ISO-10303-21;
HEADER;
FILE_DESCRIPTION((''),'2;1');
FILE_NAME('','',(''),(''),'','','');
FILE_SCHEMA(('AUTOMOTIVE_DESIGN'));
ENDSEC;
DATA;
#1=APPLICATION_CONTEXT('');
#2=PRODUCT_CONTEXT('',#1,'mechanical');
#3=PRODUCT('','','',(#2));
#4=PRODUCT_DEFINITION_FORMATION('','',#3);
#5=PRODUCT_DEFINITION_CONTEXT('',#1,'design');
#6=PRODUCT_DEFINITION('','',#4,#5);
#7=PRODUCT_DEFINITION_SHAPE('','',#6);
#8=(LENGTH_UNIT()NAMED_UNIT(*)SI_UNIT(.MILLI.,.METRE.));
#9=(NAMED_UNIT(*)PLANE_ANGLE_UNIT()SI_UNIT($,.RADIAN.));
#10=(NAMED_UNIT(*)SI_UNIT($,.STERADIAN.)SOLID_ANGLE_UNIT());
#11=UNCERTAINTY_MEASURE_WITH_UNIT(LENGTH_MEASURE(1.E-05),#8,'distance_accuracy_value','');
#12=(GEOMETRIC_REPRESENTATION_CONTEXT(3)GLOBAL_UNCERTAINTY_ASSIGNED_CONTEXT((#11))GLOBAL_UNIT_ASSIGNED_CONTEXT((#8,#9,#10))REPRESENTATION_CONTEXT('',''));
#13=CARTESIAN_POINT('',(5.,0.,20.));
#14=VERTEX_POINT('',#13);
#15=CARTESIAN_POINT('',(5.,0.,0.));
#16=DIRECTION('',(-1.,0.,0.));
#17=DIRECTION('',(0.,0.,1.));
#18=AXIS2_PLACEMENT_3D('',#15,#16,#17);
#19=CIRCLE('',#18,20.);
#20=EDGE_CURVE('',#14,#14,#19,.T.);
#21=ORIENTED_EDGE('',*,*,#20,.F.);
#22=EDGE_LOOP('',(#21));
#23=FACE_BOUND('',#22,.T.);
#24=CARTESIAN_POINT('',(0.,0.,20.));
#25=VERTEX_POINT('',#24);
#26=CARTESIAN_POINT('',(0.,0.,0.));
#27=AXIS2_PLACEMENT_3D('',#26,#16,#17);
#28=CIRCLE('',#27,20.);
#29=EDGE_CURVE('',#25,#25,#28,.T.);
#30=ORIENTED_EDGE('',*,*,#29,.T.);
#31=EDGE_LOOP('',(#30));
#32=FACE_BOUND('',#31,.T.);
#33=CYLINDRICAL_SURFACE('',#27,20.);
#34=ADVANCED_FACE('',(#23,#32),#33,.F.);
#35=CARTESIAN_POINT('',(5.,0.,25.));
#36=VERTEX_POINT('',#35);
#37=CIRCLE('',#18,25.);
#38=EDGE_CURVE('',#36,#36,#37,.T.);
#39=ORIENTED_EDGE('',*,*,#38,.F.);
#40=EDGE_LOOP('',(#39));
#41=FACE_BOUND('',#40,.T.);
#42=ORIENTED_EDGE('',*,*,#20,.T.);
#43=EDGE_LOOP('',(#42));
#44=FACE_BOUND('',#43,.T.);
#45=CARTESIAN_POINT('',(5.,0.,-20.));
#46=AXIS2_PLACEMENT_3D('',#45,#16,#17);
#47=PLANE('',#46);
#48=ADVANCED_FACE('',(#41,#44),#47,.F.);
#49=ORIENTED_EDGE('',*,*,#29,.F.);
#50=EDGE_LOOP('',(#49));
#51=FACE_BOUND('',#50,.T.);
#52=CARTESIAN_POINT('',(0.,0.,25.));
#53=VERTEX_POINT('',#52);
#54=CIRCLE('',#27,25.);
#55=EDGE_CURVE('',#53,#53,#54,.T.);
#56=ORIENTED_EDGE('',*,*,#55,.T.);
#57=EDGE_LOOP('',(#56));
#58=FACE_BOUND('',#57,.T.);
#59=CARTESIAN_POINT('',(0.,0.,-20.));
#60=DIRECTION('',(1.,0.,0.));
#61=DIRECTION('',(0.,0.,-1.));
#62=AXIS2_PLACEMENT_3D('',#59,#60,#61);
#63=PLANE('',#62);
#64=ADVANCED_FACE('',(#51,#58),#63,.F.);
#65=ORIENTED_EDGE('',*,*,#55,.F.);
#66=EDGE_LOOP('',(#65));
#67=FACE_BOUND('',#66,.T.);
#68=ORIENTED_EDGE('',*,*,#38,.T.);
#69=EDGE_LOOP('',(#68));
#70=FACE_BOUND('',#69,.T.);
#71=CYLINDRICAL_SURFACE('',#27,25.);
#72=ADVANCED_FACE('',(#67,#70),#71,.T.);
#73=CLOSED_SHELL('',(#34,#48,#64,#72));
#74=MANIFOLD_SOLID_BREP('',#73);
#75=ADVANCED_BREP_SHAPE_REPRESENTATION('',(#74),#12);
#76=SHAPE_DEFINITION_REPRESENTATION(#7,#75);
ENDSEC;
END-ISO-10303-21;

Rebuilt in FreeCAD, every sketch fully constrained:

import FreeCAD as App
import Part
import Sketcher

V = App.Vector
Q = App.Units.Quantity


def add_polygon(sketch, points):
    """Adds a closed chain of lines whose ends are joined by coincident constraints."""
    first, n = sketch.GeometryCount, len(points)
    for a, b in zip(points, points[1:] + points[:1]):
        sketch.addGeometry(Part.LineSegment(App.Vector(*a, 0), App.Vector(*b, 0)), False)
    for i in range(n):
        sketch.addConstraint(Sketcher.Constraint("Coincident", first + i, 2, first + (i + 1) % n, 1))

doc = App.newDocument("Part")
body = doc.addObject("PartDesign::Body", "Body")

# Sketch on XZ plane
sketch1 = body.newObject("Sketcher::SketchObject", "Sketch")
sketch1.AttachmentSupport = (doc.getObject("XZ_Plane"), [""])
sketch1.MapMode = "FlatFace"
add_polygon(sketch1, [(0, -25), (0, -20), (5, -20), (5, -25)])  # lines 0-3
sketch1.addConstraint([
    Sketcher.Constraint("Vertical", 0),
    Sketcher.Constraint("Horizontal", 1),
    Sketcher.Constraint("Vertical", 2),
    Sketcher.Constraint("Horizontal", 3),
    Sketcher.Constraint("PointOnObject", 0, 2, -2),
    Sketcher.Constraint("Equal", 3, 0),
    Sketcher.Constraint("DistanceX", 1, 1, 1, 2, Q("5 mm")),
    Sketcher.Constraint("DistanceY", 0, 2, -1, 1, Q("20 mm")),
])
revolution = body.newObject("PartDesign::Revolution", "Revolution")
revolution.Profile = sketch1
revolution.ReferenceAxis = (sketch1, ["H_Axis"])
revolution.Angle = 360

doc.recompute()
